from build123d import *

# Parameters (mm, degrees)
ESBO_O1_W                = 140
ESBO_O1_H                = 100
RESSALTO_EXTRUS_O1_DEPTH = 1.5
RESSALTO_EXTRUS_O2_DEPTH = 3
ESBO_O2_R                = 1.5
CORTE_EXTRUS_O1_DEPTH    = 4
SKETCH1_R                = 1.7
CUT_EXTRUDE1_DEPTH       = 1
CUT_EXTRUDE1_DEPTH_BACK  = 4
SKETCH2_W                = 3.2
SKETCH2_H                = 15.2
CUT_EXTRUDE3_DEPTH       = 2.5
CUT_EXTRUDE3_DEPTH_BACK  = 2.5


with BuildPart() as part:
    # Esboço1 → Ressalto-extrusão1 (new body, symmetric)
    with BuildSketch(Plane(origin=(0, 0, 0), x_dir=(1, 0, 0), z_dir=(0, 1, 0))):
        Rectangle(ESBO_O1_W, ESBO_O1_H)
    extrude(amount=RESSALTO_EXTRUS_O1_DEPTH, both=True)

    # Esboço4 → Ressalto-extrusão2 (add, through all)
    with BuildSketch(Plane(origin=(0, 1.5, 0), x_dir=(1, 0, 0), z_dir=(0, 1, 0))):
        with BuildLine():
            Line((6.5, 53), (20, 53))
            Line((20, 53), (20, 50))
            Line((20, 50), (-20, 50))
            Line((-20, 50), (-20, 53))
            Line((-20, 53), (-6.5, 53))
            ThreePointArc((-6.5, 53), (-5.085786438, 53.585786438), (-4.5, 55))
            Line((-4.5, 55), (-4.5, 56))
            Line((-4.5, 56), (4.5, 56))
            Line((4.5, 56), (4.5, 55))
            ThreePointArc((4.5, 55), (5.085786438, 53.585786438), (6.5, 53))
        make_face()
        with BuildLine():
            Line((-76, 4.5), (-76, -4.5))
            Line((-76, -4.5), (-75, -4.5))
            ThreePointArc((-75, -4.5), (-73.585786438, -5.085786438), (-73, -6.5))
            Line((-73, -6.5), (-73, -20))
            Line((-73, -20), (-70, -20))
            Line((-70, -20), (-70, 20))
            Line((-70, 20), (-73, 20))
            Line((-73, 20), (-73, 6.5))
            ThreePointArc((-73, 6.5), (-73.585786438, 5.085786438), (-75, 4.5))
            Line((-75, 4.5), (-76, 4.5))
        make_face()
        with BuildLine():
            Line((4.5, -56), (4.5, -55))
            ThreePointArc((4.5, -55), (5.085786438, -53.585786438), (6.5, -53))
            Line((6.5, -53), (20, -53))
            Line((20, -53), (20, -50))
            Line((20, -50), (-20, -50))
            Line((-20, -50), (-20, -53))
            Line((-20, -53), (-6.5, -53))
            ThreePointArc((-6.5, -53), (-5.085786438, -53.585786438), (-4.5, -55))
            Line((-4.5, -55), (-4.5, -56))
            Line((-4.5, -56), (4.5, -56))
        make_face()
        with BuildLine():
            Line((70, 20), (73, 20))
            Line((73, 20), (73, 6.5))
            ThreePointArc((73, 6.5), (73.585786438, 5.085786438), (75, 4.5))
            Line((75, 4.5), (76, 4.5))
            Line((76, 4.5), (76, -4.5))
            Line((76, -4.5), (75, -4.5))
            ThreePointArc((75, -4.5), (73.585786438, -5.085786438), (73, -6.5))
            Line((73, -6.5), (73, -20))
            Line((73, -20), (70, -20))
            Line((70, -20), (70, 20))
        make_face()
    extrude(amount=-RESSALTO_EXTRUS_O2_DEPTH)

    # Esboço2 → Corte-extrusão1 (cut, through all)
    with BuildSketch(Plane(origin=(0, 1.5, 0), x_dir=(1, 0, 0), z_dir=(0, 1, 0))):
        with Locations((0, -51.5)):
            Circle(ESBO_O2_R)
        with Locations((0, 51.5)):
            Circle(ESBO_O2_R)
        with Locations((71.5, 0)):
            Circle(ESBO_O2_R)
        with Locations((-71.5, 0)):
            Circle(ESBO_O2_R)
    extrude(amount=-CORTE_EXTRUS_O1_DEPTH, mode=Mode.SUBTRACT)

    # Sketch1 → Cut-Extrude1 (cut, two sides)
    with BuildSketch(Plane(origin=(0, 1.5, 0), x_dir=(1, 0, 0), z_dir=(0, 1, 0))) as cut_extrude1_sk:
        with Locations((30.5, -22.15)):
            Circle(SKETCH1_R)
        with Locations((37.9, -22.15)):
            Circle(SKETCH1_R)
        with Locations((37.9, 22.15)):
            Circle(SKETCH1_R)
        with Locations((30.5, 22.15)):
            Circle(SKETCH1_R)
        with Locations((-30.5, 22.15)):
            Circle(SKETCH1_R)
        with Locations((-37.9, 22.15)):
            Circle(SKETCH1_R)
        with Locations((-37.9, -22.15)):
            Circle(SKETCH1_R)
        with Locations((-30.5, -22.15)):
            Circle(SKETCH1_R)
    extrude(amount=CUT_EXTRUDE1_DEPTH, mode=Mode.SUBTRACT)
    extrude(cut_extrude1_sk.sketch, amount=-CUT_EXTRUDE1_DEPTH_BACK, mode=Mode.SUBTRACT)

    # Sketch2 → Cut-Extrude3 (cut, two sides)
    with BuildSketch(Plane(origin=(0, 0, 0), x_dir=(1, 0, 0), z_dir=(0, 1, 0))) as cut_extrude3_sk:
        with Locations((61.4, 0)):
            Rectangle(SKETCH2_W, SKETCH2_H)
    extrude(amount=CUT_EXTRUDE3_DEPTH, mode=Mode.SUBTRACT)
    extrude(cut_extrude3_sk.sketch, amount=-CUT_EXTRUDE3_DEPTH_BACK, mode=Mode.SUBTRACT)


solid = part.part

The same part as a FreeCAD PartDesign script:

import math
import FreeCAD as App
import Part
import Sketcher

doc = App.newDocument("Part")
body = doc.addObject("PartDesign::Body", "Body")

sketch1 = doc.addObject("Sketcher::SketchObject", "Sketch")
body.addObject(sketch1)
sketch1.AttachmentSupport = (doc.XZ_Plane, [""])
sketch1.MapMode = "FlatFace"
sketch1.addGeometry([
    Part.LineSegment(App.Vector(-70, -50, 0), App.Vector(-70, 50, 0)),
    Part.LineSegment(App.Vector(-70, 50, 0), App.Vector(70, 50, 0)),
    Part.LineSegment(App.Vector(70, 50, 0), App.Vector(70, -50, 0)),
    Part.LineSegment(App.Vector(70, -50, 0), App.Vector(-70, -50, 0)),
], False)
sketch1.addConstraint([
    Sketcher.Constraint("Coincident", 0, 2, 1, 1),
    Sketcher.Constraint("Coincident", 1, 2, 2, 1),
    Sketcher.Constraint("Coincident", 2, 2, 3, 1),
    Sketcher.Constraint("Coincident", 3, 2, 0, 1),
    Sketcher.Constraint("Vertical", 0),
    Sketcher.Constraint("Horizontal", 1),
    Sketcher.Constraint("Vertical", 2),
    Sketcher.Constraint("Horizontal", 3),
    Sketcher.Constraint("Symmetric", 0, 2, 2, 2, -1, 1),
    Sketcher.Constraint("DistanceX", 1, 1, 1, 2, 140.0),
    Sketcher.Constraint("DistanceY", 0, 1, 0, 2, 100.0),
])
pad1 = doc.addObject("PartDesign::Pad", "Pad")
body.addObject(pad1)
pad1.Profile = sketch1
pad1.Length = 3
pad1.Midplane = True

sketch2 = doc.addObject("Sketcher::SketchObject", "Sketch001")
body.addObject(sketch2)
sketch2.AttachmentSupport = (doc.XZ_Plane, [""])
sketch2.MapMode = "FlatFace"
sketch2.AttachmentOffset = App.Placement(App.Vector(0, 0, -1.5), App.Rotation())
sketch2.addGeometry([
    Part.LineSegment(App.Vector(20, -53, 0), App.Vector(6.5, -53, 0)),
    Part.ArcOfCircle(Part.Circle(App.Vector(6.5, -55, 0), App.Vector(0, 0, 1), 2), math.radians(90), math.radians(180)),
    Part.LineSegment(App.Vector(4.5, -55, 0), App.Vector(4.5, -56, 0)),
    Part.LineSegment(App.Vector(4.5, -56, 0), App.Vector(-4.5, -56, 0)),
    Part.LineSegment(App.Vector(-4.5, -56, 0), App.Vector(-4.5, -55, 0)),
    Part.ArcOfCircle(Part.Circle(App.Vector(-6.5, -55, 0), App.Vector(0, 0, 1), 2), math.radians(0), math.radians(90)),
    Part.LineSegment(App.Vector(-6.5, -53, 0), App.Vector(-20, -53, 0)),
    Part.LineSegment(App.Vector(-20, -53, 0), App.Vector(-20, -50, 0)),
    Part.LineSegment(App.Vector(-20, -50, 0), App.Vector(20, -50, 0)),
    Part.LineSegment(App.Vector(20, -50, 0), App.Vector(20, -53, 0)),
    Part.LineSegment(App.Vector(-76, -4.5, 0), App.Vector(-76, 4.5, 0)),
    Part.LineSegment(App.Vector(-76, 4.5, 0), App.Vector(-75, 4.5, 0)),
    Part.ArcOfCircle(Part.Circle(App.Vector(-75, 6.5, 0), App.Vector(0, 0, 1), 2), math.radians(-90), math.radians(0)),
    Part.LineSegment(App.Vector(-73, 6.5, 0), App.Vector(-73, 20, 0)),
    Part.LineSegment(App.Vector(-73, 20, 0), App.Vector(-70, 20, 0)),
    Part.LineSegment(App.Vector(-70, 20, 0), App.Vector(-70, -20, 0)),
    Part.LineSegment(App.Vector(-70, -20, 0), App.Vector(-73, -20, 0)),
    Part.LineSegment(App.Vector(-73, -20, 0), App.Vector(-73, -6.5, 0)),
    Part.ArcOfCircle(Part.Circle(App.Vector(-75, -6.5, 0), App.Vector(0, 0, 1), 2), math.radians(0), math.radians(90)),
    Part.LineSegment(App.Vector(-75, -4.5, 0), App.Vector(-76, -4.5, 0)),
    Part.LineSegment(App.Vector(4.5, 56, 0), App.Vector(4.5, 55, 0)),
    Part.ArcOfCircle(Part.Circle(App.Vector(6.5, 55, 0), App.Vector(0, 0, 1), 2), math.radians(-180), math.radians(-90)),
    Part.LineSegment(App.Vector(6.5, 53, 0), App.Vector(20, 53, 0)),
    Part.LineSegment(App.Vector(20, 53, 0), App.Vector(20, 50, 0)),
    Part.LineSegment(App.Vector(20, 50, 0), App.Vector(-20, 50, 0)),
    Part.LineSegment(App.Vector(-20, 50, 0), App.Vector(-20, 53, 0)),
    Part.LineSegment(App.Vector(-20, 53, 0), App.Vector(-6.5, 53, 0)),
    Part.ArcOfCircle(Part.Circle(App.Vector(-6.5, 55, 0), App.Vector(0, 0, 1), 2), math.radians(-90), math.radians(0)),
    Part.LineSegment(App.Vector(-4.5, 55, 0), App.Vector(-4.5, 56, 0)),
    Part.LineSegment(App.Vector(-4.5, 56, 0), App.Vector(4.5, 56, 0)),
    Part.LineSegment(App.Vector(73, -20, 0), App.Vector(70, -20, 0)),
    Part.LineSegment(App.Vector(70, -20, 0), App.Vector(70, 20, 0)),
    Part.LineSegment(App.Vector(70, 20, 0), App.Vector(73, 20, 0)),
    Part.LineSegment(App.Vector(73, 20, 0), App.Vector(73, 6.5, 0)),
    Part.ArcOfCircle(Part.Circle(App.Vector(75, 6.5, 0), App.Vector(0, 0, 1), 2), math.radians(-180), math.radians(-90)),
    Part.LineSegment(App.Vector(75, 4.5, 0), App.Vector(76, 4.5, 0)),
    Part.LineSegment(App.Vector(76, 4.5, 0), App.Vector(76, -4.5, 0)),
    Part.LineSegment(App.Vector(76, -4.5, 0), App.Vector(75, -4.5, 0)),
    Part.ArcOfCircle(Part.Circle(App.Vector(75, -6.5, 0), App.Vector(0, 0, 1), 2), math.radians(90), math.radians(180)),
    Part.LineSegment(App.Vector(73, -6.5, 0), App.Vector(73, -20, 0)),
], False)
sketch2.addConstraint([
    Sketcher.Constraint("Tangent", 0, 2, 1, 1),
    Sketcher.Constraint("Tangent", 1, 2, 2, 1),
    Sketcher.Constraint("Coincident", 2, 2, 3, 1),
    Sketcher.Constraint("Coincident", 3, 2, 4, 1),
    Sketcher.Constraint("Tangent", 4, 2, 5, 1),
    Sketcher.Constraint("Tangent", 5, 2, 6, 1),
    Sketcher.Constraint("Coincident", 6, 2, 7, 1),
    Sketcher.Constraint("Coincident", 7, 2, 8, 1),
    Sketcher.Constraint("Coincident", 8, 2, 9, 1),
    Sketcher.Constraint("Coincident", 9, 2, 0, 1),
    Sketcher.Constraint("Coincident", 10, 2, 11, 1),
    Sketcher.Constraint("Tangent", 11, 2, 12, 1),
    Sketcher.Constraint("Tangent", 12, 2, 13, 1),
    Sketcher.Constraint("Coincident", 13, 2, 14, 1),
    Sketcher.Constraint("Coincident", 14, 2, 15, 1),
    Sketcher.Constraint("Coincident", 15, 2, 16, 1),
    Sketcher.Constraint("Coincident", 16, 2, 17, 1),
    Sketcher.Constraint("Tangent", 17, 2, 18, 1),
    Sketcher.Constraint("Tangent", 18, 2, 19, 1),
    Sketcher.Constraint("Coincident", 19, 2, 10, 1),
    Sketcher.Constraint("Tangent", 20, 2, 21, 1),
    Sketcher.Constraint("Tangent", 21, 2, 22, 1),
    Sketcher.Constraint("Coincident", 22, 2, 23, 1),
    Sketcher.Constraint("Coincident", 23, 2, 24, 1),
    Sketcher.Constraint("Coincident", 24, 2, 25, 1),
    Sketcher.Constraint("Coincident", 25, 2, 26, 1),
    Sketcher.Constraint("Tangent", 26, 2, 27, 1),
    Sketcher.Constraint("Tangent", 27, 2, 28, 1),
    Sketcher.Constraint("Coincident", 28, 2, 29, 1),
    Sketcher.Constraint("Coincident", 29, 2, 20, 1),
    Sketcher.Constraint("Coincident", 30, 2, 31, 1),
    Sketcher.Constraint("Coincident", 31, 2, 32, 1),
    Sketcher.Constraint("Coincident", 32, 2, 33, 1),
    Sketcher.Constraint("Tangent", 33, 2, 34, 1),
    Sketcher.Constraint("Tangent", 34, 2, 35, 1),
    Sketcher.Constraint("Coincident", 35, 2, 36, 1),
    Sketcher.Constraint("Coincident", 36, 2, 37, 1),
    Sketcher.Constraint("Tangent", 37, 2, 38, 1),
    Sketcher.Constraint("Tangent", 38, 2, 39, 1),
    Sketcher.Constraint("Coincident", 39, 2, 30, 1),
    Sketcher.Constraint("Horizontal", 0),
    Sketcher.Constraint("Vertical", 2),
    Sketcher.Constraint("Horizontal", 3),
    Sketcher.Constraint("Vertical", 4),
    Sketcher.Constraint("Horizontal", 6),
    Sketcher.Constraint("Vertical", 7),
    Sketcher.Constraint("Horizontal", 8),
    Sketcher.Constraint("Vertical", 9),
    Sketcher.Constraint("Vertical", 10),
    Sketcher.Constraint("Horizontal", 11),
    Sketcher.Constraint("Vertical", 13),
    Sketcher.Constraint("Horizontal", 14),
    Sketcher.Constraint("Vertical", 15),
    Sketcher.Constraint("Horizontal", 16),
    Sketcher.Constraint("Vertical", 17),
    Sketcher.Constraint("Horizontal", 19),
    Sketcher.Constraint("Vertical", 20),
    Sketcher.Constraint("Horizontal", 22),
    Sketcher.Constraint("Vertical", 23),
    Sketcher.Constraint("Horizontal", 24),
    Sketcher.Constraint("Vertical", 25),
    Sketcher.Constraint("Horizontal", 26),
    Sketcher.Constraint("Vertical", 28),
    Sketcher.Constraint("Horizontal", 29),
    Sketcher.Constraint("Horizontal", 30),
    Sketcher.Constraint("Vertical", 31),
    Sketcher.Constraint("Horizontal", 32),
    Sketcher.Constraint("Vertical", 33),
    Sketcher.Constraint("Horizontal", 35),
    Sketcher.Constraint("Vertical", 36),
    Sketcher.Constraint("Horizontal", 37),
    Sketcher.Constraint("Vertical", 39),
    Sketcher.Constraint("Equal", 1, 5),
    Sketcher.Constraint("Equal", 5, 12),
    Sketcher.Constraint("Equal", 12, 18),
    Sketcher.Constraint("Equal", 18, 21),
    Sketcher.Constraint("Equal", 21, 27),
    Sketcher.Constraint("Equal", 27, 34),
    Sketcher.Constraint("Equal", 34, 38),
    Sketcher.Constraint("Symmetric", 5, 3, 21, 3, -1, 1),
    Sketcher.Constraint("Symmetric", 1, 3, 27, 3, -1, 1),
    Sketcher.Constraint("Symmetric", 18, 3, 34, 3, -1, 1),
    Sketcher.Constraint("Symmetric", 12, 3, 38, 3, -1, 1),
    Sketcher.Constraint("Symmetric", 7, 2, 23, 2, -1, 1),
    Sketcher.Constraint("Symmetric", 14, 2, 30, 2, -1, 1),
    Sketcher.Constraint("Symmetric", 1, 3, 5, 3, -2),
    Sketcher.Constraint("Symmetric", 12, 3, 34, 3, -2),
    Sketcher.Constraint("Horizontal", 16, 2, 30, 2),
    Sketcher.Constraint("Horizontal", 14, 2, 31, 2),
    Sketcher.Constraint("Vertical", 9, 2, 22, 2),
    Sketcher.Constraint("Vertical", 7, 2, 24, 2),
    Sketcher.Constraint("Equal", 19, 35),
    Sketcher.Constraint("Equal", 37, 2),
    Sketcher.Constraint("Equal", 32, 7),
    Sketcher.Constraint("Equal", 29, 10),
    Sketcher.Constraint("Equal", 26, 13),
    Sketcher.Constraint("Equal", 4, 20),
    Sketcher.Constraint("Radius", 1, 2.0),
    Sketcher.Constraint("DistanceX", 3, 2, 3, 1, 9.0),
    Sketcher.Constraint("DistanceX", 8, 1, 8, 2, 40.0),
    Sketcher.Constraint("DistanceX", 11, 1, 11, 2, 1.0),
    Sketcher.Constraint("DistanceX", 14, 1, 14, 2, 3.0),
    Sketcher.Constraint("DistanceY", 1, 3, -1, 1, 55.0),
    Sketcher.Constraint("DistanceX", 12, 3, -1, 1, 75.0),
])
pad2 = doc.addObject("PartDesign::Pad", "Pad001")
body.addObject(pad2)
pad2.Profile = sketch2
pad2.Type = "UpToLast"

sketch3 = doc.addObject("Sketcher::SketchObject", "Sketch002")
body.addObject(sketch3)
sketch3.AttachmentSupport = (doc.XZ_Plane, [""])
sketch3.MapMode = "FlatFace"
sketch3.AttachmentOffset = App.Placement(App.Vector(0, 0, -1.5), App.Rotation())
sketch3.addGeometry([
    Part.Circle(App.Vector(0, 51.5, 0), App.Vector(0, 0, 1), 1.5),
    Part.Circle(App.Vector(0, -51.5, 0), App.Vector(0, 0, 1), 1.5),
    Part.Circle(App.Vector(71.5, 0, 0), App.Vector(0, 0, 1), 1.5),
    Part.Circle(App.Vector(-71.5, 0, 0), App.Vector(0, 0, 1), 1.5),
], False)
sketch3.addConstraint([
    Sketcher.Constraint("Equal", 0, 1),
    Sketcher.Constraint("Equal", 1, 2),
    Sketcher.Constraint("Equal", 2, 3),
    Sketcher.Constraint("Symmetric", 0, 3, 1, 3, -1, 1),
    Sketcher.Constraint("Symmetric", 2, 3, 3, 3, -1, 1),
    Sketcher.Constraint("PointOnObject", 0, 3, -2),
    Sketcher.Constraint("PointOnObject", 2, 3, -1),
    Sketcher.Constraint("Diameter", 0, 3.0),
    Sketcher.Constraint("DistanceY", 1, 3, 0, 3, 103.0),
    Sketcher.Constraint("DistanceX", 3, 3, 2, 3, 143.0),
])
pocket1 = doc.addObject("PartDesign::Pocket", "Pocket")
body.addObject(pocket1)
pocket1.Profile = sketch3
pocket1.Type = "ThroughAll"
pocket1.Reversed = True

sketch4 = doc.addObject("Sketcher::SketchObject", "Sketch003")
body.addObject(sketch4)
sketch4.AttachmentSupport = (doc.XZ_Plane, [""])
sketch4.MapMode = "FlatFace"
sketch4.AttachmentOffset = App.Placement(App.Vector(0, 0, -1.5), App.Rotation())
sketch4.addGeometry([
    Part.Circle(App.Vector(30.5, 22.1, 0), App.Vector(0, 0, 1), 1.7),
    Part.Circle(App.Vector(37.9, 22.1, 0), App.Vector(0, 0, 1), 1.7),
    Part.Circle(App.Vector(37.9, -22.1, 0), App.Vector(0, 0, 1), 1.7),
    Part.Circle(App.Vector(30.5, -22.1, 0), App.Vector(0, 0, 1), 1.7),
    Part.Circle(App.Vector(-30.5, -22.1, 0), App.Vector(0, 0, 1), 1.7),
    Part.Circle(App.Vector(-37.9, -22.1, 0), App.Vector(0, 0, 1), 1.7),
    Part.Circle(App.Vector(-37.9, 22.1, 0), App.Vector(0, 0, 1), 1.7),
    Part.Circle(App.Vector(-30.5, 22.1, 0), App.Vector(0, 0, 1), 1.7),
], False)
sketch4.addConstraint([
    Sketcher.Constraint("Equal", 0, 1),
    Sketcher.Constraint("Equal", 1, 2),
    Sketcher.Constraint("Equal", 2, 3),
    Sketcher.Constraint("Equal", 3, 4),
    Sketcher.Constraint("Equal", 4, 5),
    Sketcher.Constraint("Equal", 5, 6),
    Sketcher.Constraint("Equal", 6, 7),
    Sketcher.Constraint("Symmetric", 0, 3, 4, 3, -1, 1),
    Sketcher.Constraint("Symmetric", 1, 3, 5, 3, -1, 1),
    Sketcher.Constraint("Symmetric", 2, 3, 6, 3, -1, 1),
    Sketcher.Constraint("Symmetric", 3, 3, 7, 3, -1, 1),
    Sketcher.Constraint("Symmetric", 3, 3, 4, 3, -2),
    Sketcher.Constraint("Symmetric", 2, 3, 5, 3, -2),
    Sketcher.Constraint("Horizontal", 0, 3, 1, 3),
    Sketcher.Constraint("Diameter", 0, 3.4),
    Sketcher.Constraint("DistanceX", 4, 3, 3, 3, 61.0),
    Sketcher.Constraint("DistanceX", -1, 1, 1, 3, 37.9),
    Sketcher.Constraint("DistanceY", 2, 3, 1, 3, 44.3),
])
pocket2 = doc.addObject("PartDesign::Pocket", "Pocket001")
body.addObject(pocket2)
pocket2.Profile = sketch4
pocket2.Type = "ThroughAll"
pocket2.Midplane = True

sketch5 = doc.addObject("Sketcher::SketchObject", "Sketch004")
body.addObject(sketch5)
sketch5.AttachmentSupport = (doc.XZ_Plane, [""])
sketch5.MapMode = "FlatFace"
sketch5.addGeometry([
    Part.LineSegment(App.Vector(59.8, -7.6, 0), App.Vector(59.8, 7.6, 0)),
    Part.LineSegment(App.Vector(59.8, 7.6, 0), App.Vector(63, 7.6, 0)),
    Part.LineSegment(App.Vector(63, 7.6, 0), App.Vector(63, -7.6, 0)),
    Part.LineSegment(App.Vector(63, -7.6, 0), App.Vector(59.8, -7.6, 0)),
], False)
sketch5.addConstraint([
    Sketcher.Constraint("Coincident", 0, 2, 1, 1),
    Sketcher.Constraint("Coincident", 1, 2, 2, 1),
    Sketcher.Constraint("Coincident", 2, 2, 3, 1),
    Sketcher.Constraint("Coincident", 3, 2, 0, 1),
    Sketcher.Constraint("Vertical", 0),
    Sketcher.Constraint("Horizontal", 1),
    Sketcher.Constraint("Vertical", 2),
    Sketcher.Constraint("Horizontal", 3),
    Sketcher.Constraint("DistanceX", 1, 1, 1, 2, 3.2),
    Sketcher.Constraint("DistanceY", 0, 1, 0, 2, 15.2),
    Sketcher.Constraint("DistanceX", -1, 1, 1, 2, 63.0),
    Sketcher.Constraint("DistanceY", -1, 1, 0, 2, 7.6),
])
pocket3 = doc.addObject("PartDesign::Pocket", "Pocket002")
body.addObject(pocket3)
pocket3.Profile = sketch5
pocket3.Type = "ThroughAll"
pocket3.Midplane = True

doc.recompute()
